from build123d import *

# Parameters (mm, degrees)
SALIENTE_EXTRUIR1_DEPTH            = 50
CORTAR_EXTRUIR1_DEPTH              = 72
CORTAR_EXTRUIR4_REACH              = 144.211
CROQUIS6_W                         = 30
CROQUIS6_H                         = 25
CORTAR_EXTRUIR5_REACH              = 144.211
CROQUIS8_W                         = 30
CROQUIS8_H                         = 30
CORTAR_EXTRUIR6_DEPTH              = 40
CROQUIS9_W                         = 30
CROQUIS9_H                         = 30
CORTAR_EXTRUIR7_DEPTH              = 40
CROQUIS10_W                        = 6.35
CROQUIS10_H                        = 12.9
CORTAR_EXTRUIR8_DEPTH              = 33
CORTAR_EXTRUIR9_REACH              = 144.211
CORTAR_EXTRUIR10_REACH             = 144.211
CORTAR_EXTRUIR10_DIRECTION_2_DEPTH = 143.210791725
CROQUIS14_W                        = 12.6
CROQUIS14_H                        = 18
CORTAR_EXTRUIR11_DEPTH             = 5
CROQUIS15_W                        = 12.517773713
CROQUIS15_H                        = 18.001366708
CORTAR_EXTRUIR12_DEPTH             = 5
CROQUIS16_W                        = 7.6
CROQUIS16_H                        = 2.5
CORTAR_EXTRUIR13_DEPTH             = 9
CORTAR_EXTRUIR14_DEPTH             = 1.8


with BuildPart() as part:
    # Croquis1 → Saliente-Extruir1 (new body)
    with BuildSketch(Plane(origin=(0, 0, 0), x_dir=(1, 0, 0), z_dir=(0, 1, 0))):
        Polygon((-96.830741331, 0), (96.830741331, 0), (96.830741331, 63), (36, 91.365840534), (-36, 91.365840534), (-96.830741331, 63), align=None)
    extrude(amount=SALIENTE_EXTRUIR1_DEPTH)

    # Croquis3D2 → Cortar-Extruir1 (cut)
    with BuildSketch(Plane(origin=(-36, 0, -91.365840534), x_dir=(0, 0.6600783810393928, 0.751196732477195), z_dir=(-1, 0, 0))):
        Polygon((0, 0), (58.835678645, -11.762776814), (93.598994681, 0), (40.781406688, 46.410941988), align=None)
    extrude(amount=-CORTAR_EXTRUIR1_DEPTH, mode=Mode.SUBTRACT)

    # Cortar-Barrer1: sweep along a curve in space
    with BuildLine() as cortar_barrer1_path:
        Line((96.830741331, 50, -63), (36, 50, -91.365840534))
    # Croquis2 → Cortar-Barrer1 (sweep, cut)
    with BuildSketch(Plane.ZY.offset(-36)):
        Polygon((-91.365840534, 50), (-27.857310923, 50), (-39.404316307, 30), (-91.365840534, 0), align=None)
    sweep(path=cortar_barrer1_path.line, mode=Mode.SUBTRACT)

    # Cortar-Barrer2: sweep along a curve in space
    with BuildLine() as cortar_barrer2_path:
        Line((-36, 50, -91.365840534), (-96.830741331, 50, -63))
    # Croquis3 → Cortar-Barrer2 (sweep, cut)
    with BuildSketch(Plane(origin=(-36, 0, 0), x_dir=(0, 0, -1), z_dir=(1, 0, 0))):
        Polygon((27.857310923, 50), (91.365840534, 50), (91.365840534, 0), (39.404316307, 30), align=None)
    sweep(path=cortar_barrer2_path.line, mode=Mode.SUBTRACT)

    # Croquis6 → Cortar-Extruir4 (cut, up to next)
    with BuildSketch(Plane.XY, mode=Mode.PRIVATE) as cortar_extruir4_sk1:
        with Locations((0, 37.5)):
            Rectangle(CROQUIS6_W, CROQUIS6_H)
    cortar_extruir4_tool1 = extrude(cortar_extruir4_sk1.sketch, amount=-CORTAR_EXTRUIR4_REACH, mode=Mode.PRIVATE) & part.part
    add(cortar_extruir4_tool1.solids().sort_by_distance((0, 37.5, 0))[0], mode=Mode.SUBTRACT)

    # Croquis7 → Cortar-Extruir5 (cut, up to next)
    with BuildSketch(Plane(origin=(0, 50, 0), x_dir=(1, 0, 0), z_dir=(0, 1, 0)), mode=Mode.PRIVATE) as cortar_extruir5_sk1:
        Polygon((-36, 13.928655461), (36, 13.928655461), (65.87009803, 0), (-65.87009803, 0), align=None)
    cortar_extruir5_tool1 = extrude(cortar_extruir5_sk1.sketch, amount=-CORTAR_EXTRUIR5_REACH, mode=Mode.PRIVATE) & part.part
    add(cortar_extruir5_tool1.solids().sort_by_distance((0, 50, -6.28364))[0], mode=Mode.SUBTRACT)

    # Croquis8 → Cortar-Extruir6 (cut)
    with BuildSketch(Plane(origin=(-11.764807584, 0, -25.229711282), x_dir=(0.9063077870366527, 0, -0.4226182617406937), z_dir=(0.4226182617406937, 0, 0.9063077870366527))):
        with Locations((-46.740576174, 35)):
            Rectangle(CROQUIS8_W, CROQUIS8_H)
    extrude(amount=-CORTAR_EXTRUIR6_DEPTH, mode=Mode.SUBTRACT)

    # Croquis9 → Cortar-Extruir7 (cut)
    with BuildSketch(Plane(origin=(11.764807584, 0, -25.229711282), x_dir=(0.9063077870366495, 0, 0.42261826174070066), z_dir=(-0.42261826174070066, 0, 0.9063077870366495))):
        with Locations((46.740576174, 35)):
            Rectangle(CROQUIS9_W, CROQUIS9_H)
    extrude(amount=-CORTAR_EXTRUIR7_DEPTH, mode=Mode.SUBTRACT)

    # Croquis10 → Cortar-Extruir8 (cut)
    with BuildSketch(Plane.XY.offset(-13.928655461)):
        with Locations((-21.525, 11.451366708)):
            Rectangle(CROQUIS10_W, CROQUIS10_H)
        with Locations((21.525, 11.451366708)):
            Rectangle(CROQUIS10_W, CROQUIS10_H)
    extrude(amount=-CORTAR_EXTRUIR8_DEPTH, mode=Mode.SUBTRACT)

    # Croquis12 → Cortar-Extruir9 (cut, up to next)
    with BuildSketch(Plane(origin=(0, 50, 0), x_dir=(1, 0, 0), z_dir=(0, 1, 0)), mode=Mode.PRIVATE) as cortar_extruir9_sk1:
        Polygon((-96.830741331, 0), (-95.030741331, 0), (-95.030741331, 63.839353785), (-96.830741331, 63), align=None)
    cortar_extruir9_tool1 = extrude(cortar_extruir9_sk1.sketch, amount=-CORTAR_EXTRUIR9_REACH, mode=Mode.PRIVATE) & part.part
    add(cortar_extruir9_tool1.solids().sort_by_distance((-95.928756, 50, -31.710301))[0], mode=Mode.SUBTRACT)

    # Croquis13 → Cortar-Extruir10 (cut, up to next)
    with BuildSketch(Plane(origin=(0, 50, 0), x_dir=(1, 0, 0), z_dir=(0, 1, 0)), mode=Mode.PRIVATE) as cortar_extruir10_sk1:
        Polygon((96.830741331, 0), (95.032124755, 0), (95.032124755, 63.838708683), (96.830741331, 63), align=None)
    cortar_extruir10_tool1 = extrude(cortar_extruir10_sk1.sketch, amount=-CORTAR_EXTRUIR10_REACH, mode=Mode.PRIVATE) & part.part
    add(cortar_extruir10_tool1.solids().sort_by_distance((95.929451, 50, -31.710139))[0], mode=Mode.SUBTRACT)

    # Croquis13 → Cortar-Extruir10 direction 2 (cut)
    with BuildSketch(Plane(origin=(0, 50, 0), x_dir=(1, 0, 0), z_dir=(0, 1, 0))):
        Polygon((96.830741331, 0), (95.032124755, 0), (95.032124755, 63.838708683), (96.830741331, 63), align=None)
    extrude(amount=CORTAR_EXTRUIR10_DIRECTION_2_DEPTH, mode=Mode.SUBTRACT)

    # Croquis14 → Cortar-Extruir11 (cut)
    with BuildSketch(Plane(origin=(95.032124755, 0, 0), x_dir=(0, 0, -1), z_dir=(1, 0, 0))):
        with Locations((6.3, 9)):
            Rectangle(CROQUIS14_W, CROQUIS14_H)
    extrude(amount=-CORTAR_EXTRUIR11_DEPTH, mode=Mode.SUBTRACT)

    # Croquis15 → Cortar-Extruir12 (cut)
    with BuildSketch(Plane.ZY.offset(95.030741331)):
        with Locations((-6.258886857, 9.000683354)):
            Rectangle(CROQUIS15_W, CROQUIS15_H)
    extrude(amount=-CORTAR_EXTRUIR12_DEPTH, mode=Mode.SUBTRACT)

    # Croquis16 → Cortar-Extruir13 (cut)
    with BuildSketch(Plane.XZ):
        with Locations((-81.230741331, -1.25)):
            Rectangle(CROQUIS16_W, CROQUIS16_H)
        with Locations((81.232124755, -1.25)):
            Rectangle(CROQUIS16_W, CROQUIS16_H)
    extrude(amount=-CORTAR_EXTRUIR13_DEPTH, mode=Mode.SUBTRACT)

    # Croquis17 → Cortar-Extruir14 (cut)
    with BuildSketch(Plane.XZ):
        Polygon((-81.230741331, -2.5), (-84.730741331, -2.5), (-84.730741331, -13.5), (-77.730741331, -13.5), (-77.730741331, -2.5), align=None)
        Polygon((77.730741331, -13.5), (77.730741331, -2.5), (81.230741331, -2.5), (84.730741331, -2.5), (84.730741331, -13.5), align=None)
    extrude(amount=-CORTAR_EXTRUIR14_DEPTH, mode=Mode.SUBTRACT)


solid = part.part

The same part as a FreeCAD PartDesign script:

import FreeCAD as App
import Part
import Sketcher

V = App.Vector
Q = App.Units.Quantity


def add_polygon(sketch, points):
    """Adds a closed chain of lines whose ends are joined by coincident constraints."""
    first, n = sketch.GeometryCount, len(points)
    for a, b in zip(points, points[1:] + points[:1]):
        sketch.addGeometry(Part.LineSegment(App.Vector(*a, 0), App.Vector(*b, 0)), False)
    for i in range(n):
        sketch.addConstraint(Sketcher.Constraint("Coincident", first + i, 2, first + (i + 1) % n, 1))

doc = App.newDocument("Part")
body = doc.addObject("PartDesign::Body", "Body")

# Sketch on XZ plane
sketch1 = doc.addObject("Sketcher::SketchObject", "Sketch")
body.addObject(sketch1)
sketch1.AttachmentSupport = (doc.XZ_Plane, [""])
sketch1.MapMode = "FlatFace"
add_polygon(sketch1, [(-96.830741, 0), (96.830741, 0), (96.830741, -63), (36, -91.365841), (-36, -91.365841), (-96.830741, -63)])  # lines 0-5
sketch1.addConstraint([
    Sketcher.Constraint("Horizontal", 0),
    Sketcher.Constraint("Vertical", 1),
    Sketcher.Constraint("Horizontal", 3),
    Sketcher.Constraint("Vertical", 5),
    Sketcher.Constraint("Symmetric", 0, 2, 5, 2, -1, 1),
    Sketcher.Constraint("Horizontal", 1, 2, 4, 2),
    Sketcher.Constraint("Equal", 2, 4),
    Sketcher.Constraint("DistanceX", 3, 2, 3, 1, Q("72 mm")),
    Sketcher.Constraint("DistanceY", 1, 2, 1, 1, Q("63 mm")),
    Sketcher.Constraint("Angle", 2, Q("-155 deg")),
    Sketcher.Constraint("DistanceX", 0, 1, 0, 2, Q("193.661483 mm")),
])
pad1 = doc.addObject("PartDesign::Pad", "Pad")
body.addObject(pad1)
pad1.Profile = sketch1
pad1.Length = 50
pad1.Reversed = True

# Sketch on YZ plane
sketch2 = doc.addObject("Sketcher::SketchObject", "Sketch001")
body.addObject(sketch2)
sketch2.AttachmentSupport = (doc.YZ_Plane, [""])
sketch2.MapMode = "FlatFace"
sketch2.AttachmentOffset = App.Placement(V(0, 0, -36), App.Rotation())
add_polygon(sketch2, [(0, -91.365841), (30, -39.404316), (61.782673, -21.054582), (61.782673, -91.365841)])  # lines 0-3
sketch2.addConstraint([
    Sketcher.Constraint("Vertical", 2),
    Sketcher.Constraint("Horizontal", 3),
    Sketcher.Constraint("PointOnObject", 3, 2, -2),
    Sketcher.Constraint("Angle", 0, Q("60 deg")),
    Sketcher.Constraint("Angle", 1, Q("30 deg")),
    Sketcher.Constraint("Distance", 0, Q("60 mm")),
    Sketcher.Constraint("DistanceY", 2, 2, 2, 1, Q("70.311259 mm")),
    Sketcher.Constraint("DistanceY", 1, 2, -1, 1, Q("21.054582 mm")),
])
pocket1 = doc.addObject("PartDesign::Pocket", "Pocket")
body.addObject(pocket1)
pocket1.Profile = sketch2
pocket1.Length = 72
pocket1.Reversed = True

# Sketch on YZ plane
sketch3 = doc.addObject("Sketcher::SketchObject", "Sketch002")
body.addObject(sketch3)
sketch3.AttachmentSupport = (doc.YZ_Plane, [""])
sketch3.MapMode = "FlatFace"
sketch3.AttachmentOffset = App.Placement(V(0, 0, 36), App.Rotation())
add_polygon(sketch3, [(50, -27.857311), (50, -91.365841), (0, -91.365841), (30, -39.404316)])  # lines 0-3
sketch3.addConstraint([
    Sketcher.Constraint("Vertical", 0),
    Sketcher.Constraint("Horizontal", 1),
    Sketcher.Constraint("PointOnObject", 1, 2, -2),
    Sketcher.Constraint("DistanceX", 1, 2, 1, 1, Q("50 mm")),
    Sketcher.Constraint("Angle", 2, Q("60 deg")),
    Sketcher.Constraint("Angle", 3, Q("30 deg")),
    Sketcher.Constraint("Distance", 2, Q("60 mm")),
    Sketcher.Constraint("DistanceY", 0, 2, -1, 1, Q("91.365841 mm")),
])

# Sketch on an angled plane
sketch4 = doc.addObject("Sketcher::SketchObject", "Sketch003")
body.addObject(sketch4)
sketch4.Placement = App.Placement(V(41.42497, 0, -88.836135), App.Rotation(V(-0.906307787, 0, -0.422618262), V(0, 1, 0), V(0.422618262, 0, -0.906307787), "ZXY"))
sketch4.addGeometry(Part.LineSegment(V(-61.133504, 50, 0), V(5.985792, 50, 0)), False)
sketch4.addConstraint([
    Sketcher.Constraint("Horizontal", 0),
    Sketcher.Constraint("DistanceY", -1, 1, 0, 1, Q("50 mm")),
    Sketcher.Constraint("DistanceX", 0, 1, 0, 2, Q("67.119297 mm")),
    Sketcher.Constraint("DistanceX", 0, 1, -1, 1, Q("61.133504 mm")),
])
doc.recompute()

subtractivepipe = doc.addObject("PartDesign::SubtractivePipe", "SubtractivePipe")
body.addObject(subtractivepipe)
subtractivepipe.Profile = sketch3
subtractivepipe.Spine = (sketch4, ["Edge1"])

# Sketch on YZ plane
sketch5 = doc.addObject("Sketcher::SketchObject", "Sketch004")
body.addObject(sketch5)
sketch5.AttachmentSupport = (doc.YZ_Plane, [""])
sketch5.MapMode = "FlatFace"
sketch5.AttachmentOffset = App.Placement(V(0, 0, -36), App.Rotation())
add_polygon(sketch5, [(50, -91.365841), (50, -27.857311), (30, -39.404316), (0, -91.365841)])  # lines 0-3
sketch5.addConstraint([
    Sketcher.Constraint("Vertical", 0),
    Sketcher.Constraint("Horizontal", 3),
    Sketcher.Constraint("PointOnObject", 2, 2, -2),
    Sketcher.Constraint("DistanceX", 3, 1, 3, 2, Q("50 mm")),
    Sketcher.Constraint("Angle", 1, Q("-150 deg")),
    Sketcher.Constraint("Angle", 2, Q("-120 deg")),
    Sketcher.Constraint("Distance", 2, Q("60 mm")),
    Sketcher.Constraint("DistanceY", 0, 2, -1, 1, Q("27.857311 mm")),
])

# Sketch on an angled plane
sketch6 = doc.addObject("Sketcher::SketchObject", "Sketch005")
body.addObject(sketch6)
sketch6.Placement = App.Placement(V(-41.42497, 0, -88.836135), App.Rotation(V(-0.906307787, 0, 0.422618262), V(0, 1, 0), V(-0.422618262, 0, -0.906307787), "ZXY"))
sketch6.addGeometry(Part.LineSegment(V(-5.985792, 50, 0), V(61.133504, 50, 0)), False)
sketch6.addConstraint([
    Sketcher.Constraint("Horizontal", 0),
    Sketcher.Constraint("DistanceY", -1, 1, 0, 1, Q("50 mm")),
    Sketcher.Constraint("DistanceX", 0, 1, 0, 2, Q("67.119297 mm")),
    Sketcher.Constraint("DistanceX", 0, 1, -1, 1, Q("5.985792 mm")),
])
doc.recompute()

subtractivepipe2 = doc.addObject("PartDesign::SubtractivePipe", "SubtractivePipe001")
body.addObject(subtractivepipe2)
subtractivepipe2.Profile = sketch5
subtractivepipe2.Spine = (sketch6, ["Edge1"])

# Sketch on XY plane
sketch7 = doc.addObject("Sketcher::SketchObject", "Sketch006")
body.addObject(sketch7)
sketch7.AttachmentSupport = (doc.XY_Plane, [""])
sketch7.MapMode = "FlatFace"
add_polygon(sketch7, [(-15, 50), (-15, 25), (15, 25), (15, 50)])  # lines 0-3
sketch7.addConstraint([
    Sketcher.Constraint("Vertical", 0),
    Sketcher.Constraint("Horizontal", 1),
    Sketcher.Constraint("Vertical", 2),
    Sketcher.Constraint("Horizontal", 3),
    Sketcher.Constraint("DistanceX", 1, 1, 1, 2, Q("30 mm")),
    Sketcher.Constraint("DistanceY", 0, 2, 0, 1, Q("25 mm")),
    Sketcher.Constraint("DistanceX", 0, 2, -1, 1, Q("15 mm")),
    Sketcher.Constraint("DistanceY", -1, 1, 0, 2, Q("25 mm")),
])
pocket2 = doc.addObject("PartDesign::Pocket", "Pocket001")
body.addObject(pocket2)
pocket2.Profile = sketch7
pocket2.Length = 48.06457

# Sketch on XZ plane
sketch8 = doc.addObject("Sketcher::SketchObject", "Sketch007")
body.addObject(sketch8)
sketch8.AttachmentSupport = (doc.XZ_Plane, [""])
sketch8.MapMode = "FlatFace"
sketch8.AttachmentOffset = App.Placement(V(0, 0, -50), App.Rotation())
add_polygon(sketch8, [(36, -13.928655), (-36, -13.928655), (-65.870098, 0), (65.870098, 0)])  # lines 0-3
sketch8.addConstraint([
    Sketcher.Constraint("Horizontal", 0),
    Sketcher.Constraint("Horizontal", 2),
    Sketcher.Constraint("Symmetric", 1, 2, 2, 2, -1, 1),
    Sketcher.Constraint("Equal", 1, 3),
    Sketcher.Constraint("DistanceX", 0, 2, 0, 1, Q("72 mm")),
    Sketcher.Constraint("Angle", 1, Q("155 deg")),
    Sketcher.Constraint("DistanceX", 1, 2, -1, 1, Q("65.870098 mm")),
])
pocket3 = doc.addObject("PartDesign::Pocket", "Pocket002")
body.addObject(pocket3)
pocket3.Profile = sketch8
pocket3.Length = 50
pocket3.Reversed = True

# Sketch on an angled plane
sketch9 = doc.addObject("Sketcher::SketchObject", "Sketch008")
body.addObject(sketch9)
sketch9.Placement = App.Placement(V(-11.764808, 0, -25.229711), App.Rotation(V(0.906307787, 0, -0.422618262), V(0, 1, 0), V(0.422618262, 0, 0.906307787), "ZXY"))
add_polygon(sketch9, [(-61.740576, 50), (-61.740576, 20), (-31.740576, 20), (-31.740576, 50)])  # lines 0-3
sketch9.addConstraint([
    Sketcher.Constraint("Vertical", 0),
    Sketcher.Constraint("Horizontal", 1),
    Sketcher.Constraint("Vertical", 2),
    Sketcher.Constraint("Horizontal", 3),
    Sketcher.Constraint("Equal", 3, 0),
    Sketcher.Constraint("DistanceX", 1, 1, 1, 2, Q("30 mm")),
    Sketcher.Constraint("DistanceY", -1, 1, 0, 2, Q("20 mm")),
    Sketcher.Constraint("DistanceX", 0, 2, -1, 1, Q("61.740576 mm")),
])
pocket4 = doc.addObject("PartDesign::Pocket", "Pocket003")
body.addObject(pocket4)
pocket4.Profile = sketch9
pocket4.Length = 40

# Sketch on an angled plane
sketch10 = doc.addObject("Sketcher::SketchObject", "Sketch009")
body.addObject(sketch10)
sketch10.Placement = App.Placement(V(11.764808, 0, -25.229711), App.Rotation(V(0.906307787, 0, 0.422618262), V(0, 1, 0), V(-0.422618262, 0, 0.906307787), "ZXY"))
add_polygon(sketch10, [(31.740576, 50), (31.740576, 20), (61.740576, 20), (61.740576, 50)])  # lines 0-3
sketch10.addConstraint([
    Sketcher.Constraint("Vertical", 0),
    Sketcher.Constraint("Horizontal", 1),
    Sketcher.Constraint("Vertical", 2),
    Sketcher.Constraint("Horizontal", 3),
    Sketcher.Constraint("Equal", 3, 0),
    Sketcher.Constraint("DistanceX", 1, 1, 1, 2, Q("30 mm")),
    Sketcher.Constraint("DistanceY", -1, 1, 0, 2, Q("20 mm")),
    Sketcher.Constraint("DistanceX", -1, 1, 0, 2, Q("31.740576 mm")),
])
pocket5 = doc.addObject("PartDesign::Pocket", "Pocket004")
body.addObject(pocket5)
pocket5.Profile = sketch10
pocket5.Length = 40

# Sketch on XY plane
sketch11 = doc.addObject("Sketcher::SketchObject", "Sketch010")
body.addObject(sketch11)
sketch11.AttachmentSupport = (doc.XY_Plane, [""])
sketch11.MapMode = "FlatFace"
sketch11.AttachmentOffset = App.Placement(V(0, 0, -13.928655), App.Rotation())
add_polygon(sketch11, [(-24.7, 17.901367), (-24.7, 5.001367), (-18.35, 5.001367), (-18.35, 17.901367)])  # lines 0-3
add_polygon(sketch11, [(18.35, 17.901367), (18.35, 5.001367), (24.7, 5.001367), (24.7, 17.901367)])  # lines 4-7
sketch11.addConstraint([
    Sketcher.Constraint("Vertical", 0),
    Sketcher.Constraint("Horizontal", 1),
    Sketcher.Constraint("Vertical", 2),
    Sketcher.Constraint("Horizontal", 3),
    Sketcher.Constraint("Vertical", 4),
    Sketcher.Constraint("Horizontal", 5),
    Sketcher.Constraint("Vertical", 6),
    Sketcher.Constraint("Horizontal", 7),
    Sketcher.Constraint("Symmetric", 1, 2, 4, 2, -2),
    Sketcher.Constraint("Symmetric", 3, 2, 6, 2, -2),
    Sketcher.Constraint("DistanceY", 0, 2, 0, 1, Q("12.9 mm")),
    Sketcher.Constraint("DistanceX", 1, 1, 1, 2, Q("6.35 mm")),
    Sketcher.Constraint("DistanceX", 0, 2, -1, 1, Q("24.7 mm")),
    Sketcher.Constraint("DistanceY", -1, 1, 0, 2, Q("5.001367 mm")),
])
pocket6 = doc.addObject("PartDesign::Pocket", "Pocket005")
body.addObject(pocket6)
pocket6.Profile = sketch11
pocket6.Length = 33

# Sketch on XZ plane
sketch12 = doc.addObject("Sketcher::SketchObject", "Sketch011")
body.addObject(sketch12)
sketch12.AttachmentSupport = (doc.XZ_Plane, [""])
sketch12.MapMode = "FlatFace"
sketch12.AttachmentOffset = App.Placement(V(0, 0, -50), App.Rotation())
add_polygon(sketch12, [(-96.830741, 0), (-95.030741, 0), (-95.030741, -63.839354), (-96.830741, -63)])  # lines 0-3
sketch12.addConstraint([
    Sketcher.Constraint("Horizontal", 0),
    Sketcher.Constraint("Vertical", 1),
    Sketcher.Constraint("Vertical", 3),
    Sketcher.Constraint("PointOnObject", 0, 2, -1),
    Sketcher.Constraint("DistanceY", 3, 1, 3, 2, Q("63 mm")),
    Sketcher.Constraint("Angle", 2, Q("155 deg")),
    Sketcher.Constraint("DistanceX", 0, 1, 0, 2, Q("1.8 mm")),
    Sketcher.Constraint("DistanceX", 0, 2, -1, 1, Q("95.030741 mm")),
])
pocket7 = doc.addObject("PartDesign::Pocket", "Pocket006")
body.addObject(pocket7)
pocket7.Profile = sketch12
pocket7.Length = 50
pocket7.Reversed = True

# Sketch on XZ plane
sketch13 = doc.addObject("Sketcher::SketchObject", "Sketch012")
body.addObject(sketch13)
sketch13.AttachmentSupport = (doc.XZ_Plane, [""])
sketch13.MapMode = "FlatFace"
sketch13.AttachmentOffset = App.Placement(V(0, 0, -50), App.Rotation())
add_polygon(sketch13, [(95.032125, 0), (96.830741, 0), (96.830741, -63), (95.032125, -63.838709)])  # lines 0-3
sketch13.addConstraint([
    Sketcher.Constraint("Horizontal", 0),
    Sketcher.Constraint("Vertical", 1),
    Sketcher.Constraint("Vertical", 3),
    Sketcher.Constraint("PointOnObject", 0, 2, -1),
    Sketcher.Constraint("DistanceY", 1, 2, 1, 1, Q("63 mm")),
    Sketcher.Constraint("Angle", 2, Q("-155 deg")),
    Sketcher.Constraint("DistanceY", 3, 1, 3, 2, Q("63.838709 mm")),
    Sketcher.Constraint("DistanceX", -1, 1, 0, 2, Q("96.830741 mm")),
])
pocket8 = doc.addObject("PartDesign::Pocket", "Pocket007")
body.addObject(pocket8)
pocket8.Profile = sketch13
pocket8.Length = 50
pocket8.Reversed = True

# Sketch on XZ plane
sketch14 = doc.addObject("Sketcher::SketchObject", "Sketch013")
body.addObject(sketch14)
sketch14.AttachmentSupport = (doc.XZ_Plane, [""])
sketch14.MapMode = "FlatFace"
sketch14.AttachmentOffset = App.Placement(V(0, 0, -50), App.Rotation())
add_polygon(sketch14, [(95.032125, 0), (96.830741, 0), (96.830741, -63), (95.032125, -63.838709)])  # lines 0-3
sketch14.addConstraint([
    Sketcher.Constraint("Horizontal", 0),
    Sketcher.Constraint("Vertical", 1),
    Sketcher.Constraint("Vertical", 3),
    Sketcher.Constraint("PointOnObject", 0, 2, -1),
    Sketcher.Constraint("DistanceY", 1, 2, 1, 1, Q("63 mm")),
    Sketcher.Constraint("Angle", 2, Q("-155 deg")),
    Sketcher.Constraint("DistanceY", 3, 1, 3, 2, Q("63.838709 mm")),
    Sketcher.Constraint("DistanceX", -1, 1, 0, 2, Q("96.830741 mm")),
])
pocket9 = doc.addObject("PartDesign::Pocket", "Pocket008")
body.addObject(pocket9)
pocket9.Profile = sketch14
pocket9.Length = 143.210792

# Sketch on YZ plane
sketch15 = doc.addObject("Sketcher::SketchObject", "Sketch014")
body.addObject(sketch15)
sketch15.AttachmentSupport = (doc.YZ_Plane, [""])
sketch15.MapMode = "FlatFace"
sketch15.AttachmentOffset = App.Placement(V(0, 0, 95.032125), App.Rotation())
add_polygon(sketch15, [(18, 0), (0, 0), (0, -12.6), (18, -12.6)])  # lines 0-3
sketch15.addConstraint([
    Sketcher.Constraint("Horizontal", 0),
    Sketcher.Constraint("Vertical", 1),
    Sketcher.Constraint("Horizontal", 2),
    Sketcher.Constraint("Vertical", 3),
    Sketcher.Constraint("Coincident", 0, 2, -1, 1),
    Sketcher.Constraint("DistanceX", 0, 2, 0, 1, Q("18 mm")),
    Sketcher.Constraint("DistanceY", 1, 2, 1, 1, Q("12.6 mm")),
])
pocket10 = doc.addObject("PartDesign::Pocket", "Pocket009")
body.addObject(pocket10)
pocket10.Profile = sketch15
pocket10.Length = 5

# Sketch on YZ plane
sketch16 = doc.addObject("Sketcher::SketchObject", "Sketch015")
body.addObject(sketch16)
sketch16.AttachmentSupport = (doc.YZ_Plane, [""])
sketch16.MapMode = "FlatFace"
sketch16.AttachmentOffset = App.Placement(V(0, 0, -95.030741), App.Rotation())
add_polygon(sketch16, [(18.001367, -12.517774), (0, -12.517774), (0, 0), (18.001367, 0)])  # lines 0-3
sketch16.addConstraint([
    Sketcher.Constraint("Horizontal", 0),
    Sketcher.Constraint("Vertical", 1),
    Sketcher.Constraint("Horizontal", 2),
    Sketcher.Constraint("Vertical", 3),
    Sketcher.Constraint("Coincident", 1, 2, -1, 1),
    Sketcher.Constraint("DistanceX", 0, 2, 0, 1, Q("18.001367 mm")),
    Sketcher.Constraint("DistanceY", 1, 1, 1, 2, Q("12.517774 mm")),
])
pocket11 = doc.addObject("PartDesign::Pocket", "Pocket010")
body.addObject(pocket11)
pocket11.Profile = sketch16
pocket11.Length = 5
pocket11.Reversed = True

# Sketch on XZ plane
sketch17 = doc.addObject("Sketcher::SketchObject", "Sketch016")
body.addObject(sketch17)
sketch17.AttachmentSupport = (doc.XZ_Plane, [""])
sketch17.MapMode = "FlatFace"
add_polygon(sketch17, [(-85.030741, 0), (-85.030741, -2.5), (-77.430741, -2.5), (-77.430741, 0)])  # lines 0-3
add_polygon(sketch17, [(77.432125, 0), (77.432125, -2.5), (85.032125, -2.5), (85.032125, 0)])  # lines 4-7
sketch17.addConstraint([
    Sketcher.Constraint("Vertical", 0),
    Sketcher.Constraint("Horizontal", 1),
    Sketcher.Constraint("Vertical", 2),
    Sketcher.Constraint("Horizontal", 3),
    Sketcher.Constraint("Vertical", 4),
    Sketcher.Constraint("Horizontal", 5),
    Sketcher.Constraint("Vertical", 6),
    Sketcher.Constraint("Horizontal", 7),
    Sketcher.Constraint("PointOnObject", 2, 2, -1),
    Sketcher.Constraint("PointOnObject", 6, 2, -1),
    Sketcher.Constraint("Horizontal", 1, 2, 4, 2),
    Sketcher.Constraint("Equal", 3, 5),
    Sketcher.Constraint("DistanceX", 1, 1, 1, 2, Q("7.6 mm")),
    Sketcher.Constraint("DistanceY", 0, 2, 0, 1, Q("2.5 mm")),
    Sketcher.Constraint("DistanceX", 0, 2, -1, 1, Q("85.030741 mm")),
    Sketcher.Constraint("DistanceX", -1, 1, 4, 2, Q("77.432125 mm")),
])
pocket12 = doc.addObject("PartDesign::Pocket", "Pocket011")
body.addObject(pocket12)
pocket12.Profile = sketch17
pocket12.Length = 9

# Sketch on XZ plane
sketch18 = doc.addObject("Sketcher::SketchObject", "Sketch017")
body.addObject(sketch18)
sketch18.AttachmentSupport = (doc.XZ_Plane, [""])
sketch18.MapMode = "FlatFace"
add_polygon(sketch18, [(-84.730741, -2.5), (-84.730741, -13.5), (-77.730741, -13.5), (-77.730741, -2.5)])  # lines 0-3
add_polygon(sketch18, [(77.730741, -2.5), (77.730741, -13.5), (84.730741, -13.5), (84.730741, -2.5)])  # lines 4-7
sketch18.addConstraint([
    Sketcher.Constraint("Vertical", 0),
    Sketcher.Constraint("Horizontal", 1),
    Sketcher.Constraint("Vertical", 2),
    Sketcher.Constraint("Horizontal", 3),
    Sketcher.Constraint("Vertical", 4),
    Sketcher.Constraint("Horizontal", 5),
    Sketcher.Constraint("Vertical", 6),
    Sketcher.Constraint("Horizontal", 7),
    Sketcher.Constraint("Symmetric", 1, 2, 4, 2, -2),
    Sketcher.Constraint("Symmetric", 3, 2, 6, 2, -2),
    Sketcher.Constraint("DistanceX", 1, 1, 1, 2, Q("7 mm")),
    Sketcher.Constraint("DistanceY", 0, 2, 0, 1, Q("11 mm")),
    Sketcher.Constraint("DistanceY", 0, 2, -1, 1, Q("13.5 mm")),
    Sketcher.Constraint("DistanceX", 0, 2, -1, 1, Q("84.730741 mm")),
])
pocket13 = doc.addObject("PartDesign::Pocket", "Pocket012")
body.addObject(pocket13)
pocket13.Profile = sketch18
pocket13.Length = 1.8

doc.recompute()
